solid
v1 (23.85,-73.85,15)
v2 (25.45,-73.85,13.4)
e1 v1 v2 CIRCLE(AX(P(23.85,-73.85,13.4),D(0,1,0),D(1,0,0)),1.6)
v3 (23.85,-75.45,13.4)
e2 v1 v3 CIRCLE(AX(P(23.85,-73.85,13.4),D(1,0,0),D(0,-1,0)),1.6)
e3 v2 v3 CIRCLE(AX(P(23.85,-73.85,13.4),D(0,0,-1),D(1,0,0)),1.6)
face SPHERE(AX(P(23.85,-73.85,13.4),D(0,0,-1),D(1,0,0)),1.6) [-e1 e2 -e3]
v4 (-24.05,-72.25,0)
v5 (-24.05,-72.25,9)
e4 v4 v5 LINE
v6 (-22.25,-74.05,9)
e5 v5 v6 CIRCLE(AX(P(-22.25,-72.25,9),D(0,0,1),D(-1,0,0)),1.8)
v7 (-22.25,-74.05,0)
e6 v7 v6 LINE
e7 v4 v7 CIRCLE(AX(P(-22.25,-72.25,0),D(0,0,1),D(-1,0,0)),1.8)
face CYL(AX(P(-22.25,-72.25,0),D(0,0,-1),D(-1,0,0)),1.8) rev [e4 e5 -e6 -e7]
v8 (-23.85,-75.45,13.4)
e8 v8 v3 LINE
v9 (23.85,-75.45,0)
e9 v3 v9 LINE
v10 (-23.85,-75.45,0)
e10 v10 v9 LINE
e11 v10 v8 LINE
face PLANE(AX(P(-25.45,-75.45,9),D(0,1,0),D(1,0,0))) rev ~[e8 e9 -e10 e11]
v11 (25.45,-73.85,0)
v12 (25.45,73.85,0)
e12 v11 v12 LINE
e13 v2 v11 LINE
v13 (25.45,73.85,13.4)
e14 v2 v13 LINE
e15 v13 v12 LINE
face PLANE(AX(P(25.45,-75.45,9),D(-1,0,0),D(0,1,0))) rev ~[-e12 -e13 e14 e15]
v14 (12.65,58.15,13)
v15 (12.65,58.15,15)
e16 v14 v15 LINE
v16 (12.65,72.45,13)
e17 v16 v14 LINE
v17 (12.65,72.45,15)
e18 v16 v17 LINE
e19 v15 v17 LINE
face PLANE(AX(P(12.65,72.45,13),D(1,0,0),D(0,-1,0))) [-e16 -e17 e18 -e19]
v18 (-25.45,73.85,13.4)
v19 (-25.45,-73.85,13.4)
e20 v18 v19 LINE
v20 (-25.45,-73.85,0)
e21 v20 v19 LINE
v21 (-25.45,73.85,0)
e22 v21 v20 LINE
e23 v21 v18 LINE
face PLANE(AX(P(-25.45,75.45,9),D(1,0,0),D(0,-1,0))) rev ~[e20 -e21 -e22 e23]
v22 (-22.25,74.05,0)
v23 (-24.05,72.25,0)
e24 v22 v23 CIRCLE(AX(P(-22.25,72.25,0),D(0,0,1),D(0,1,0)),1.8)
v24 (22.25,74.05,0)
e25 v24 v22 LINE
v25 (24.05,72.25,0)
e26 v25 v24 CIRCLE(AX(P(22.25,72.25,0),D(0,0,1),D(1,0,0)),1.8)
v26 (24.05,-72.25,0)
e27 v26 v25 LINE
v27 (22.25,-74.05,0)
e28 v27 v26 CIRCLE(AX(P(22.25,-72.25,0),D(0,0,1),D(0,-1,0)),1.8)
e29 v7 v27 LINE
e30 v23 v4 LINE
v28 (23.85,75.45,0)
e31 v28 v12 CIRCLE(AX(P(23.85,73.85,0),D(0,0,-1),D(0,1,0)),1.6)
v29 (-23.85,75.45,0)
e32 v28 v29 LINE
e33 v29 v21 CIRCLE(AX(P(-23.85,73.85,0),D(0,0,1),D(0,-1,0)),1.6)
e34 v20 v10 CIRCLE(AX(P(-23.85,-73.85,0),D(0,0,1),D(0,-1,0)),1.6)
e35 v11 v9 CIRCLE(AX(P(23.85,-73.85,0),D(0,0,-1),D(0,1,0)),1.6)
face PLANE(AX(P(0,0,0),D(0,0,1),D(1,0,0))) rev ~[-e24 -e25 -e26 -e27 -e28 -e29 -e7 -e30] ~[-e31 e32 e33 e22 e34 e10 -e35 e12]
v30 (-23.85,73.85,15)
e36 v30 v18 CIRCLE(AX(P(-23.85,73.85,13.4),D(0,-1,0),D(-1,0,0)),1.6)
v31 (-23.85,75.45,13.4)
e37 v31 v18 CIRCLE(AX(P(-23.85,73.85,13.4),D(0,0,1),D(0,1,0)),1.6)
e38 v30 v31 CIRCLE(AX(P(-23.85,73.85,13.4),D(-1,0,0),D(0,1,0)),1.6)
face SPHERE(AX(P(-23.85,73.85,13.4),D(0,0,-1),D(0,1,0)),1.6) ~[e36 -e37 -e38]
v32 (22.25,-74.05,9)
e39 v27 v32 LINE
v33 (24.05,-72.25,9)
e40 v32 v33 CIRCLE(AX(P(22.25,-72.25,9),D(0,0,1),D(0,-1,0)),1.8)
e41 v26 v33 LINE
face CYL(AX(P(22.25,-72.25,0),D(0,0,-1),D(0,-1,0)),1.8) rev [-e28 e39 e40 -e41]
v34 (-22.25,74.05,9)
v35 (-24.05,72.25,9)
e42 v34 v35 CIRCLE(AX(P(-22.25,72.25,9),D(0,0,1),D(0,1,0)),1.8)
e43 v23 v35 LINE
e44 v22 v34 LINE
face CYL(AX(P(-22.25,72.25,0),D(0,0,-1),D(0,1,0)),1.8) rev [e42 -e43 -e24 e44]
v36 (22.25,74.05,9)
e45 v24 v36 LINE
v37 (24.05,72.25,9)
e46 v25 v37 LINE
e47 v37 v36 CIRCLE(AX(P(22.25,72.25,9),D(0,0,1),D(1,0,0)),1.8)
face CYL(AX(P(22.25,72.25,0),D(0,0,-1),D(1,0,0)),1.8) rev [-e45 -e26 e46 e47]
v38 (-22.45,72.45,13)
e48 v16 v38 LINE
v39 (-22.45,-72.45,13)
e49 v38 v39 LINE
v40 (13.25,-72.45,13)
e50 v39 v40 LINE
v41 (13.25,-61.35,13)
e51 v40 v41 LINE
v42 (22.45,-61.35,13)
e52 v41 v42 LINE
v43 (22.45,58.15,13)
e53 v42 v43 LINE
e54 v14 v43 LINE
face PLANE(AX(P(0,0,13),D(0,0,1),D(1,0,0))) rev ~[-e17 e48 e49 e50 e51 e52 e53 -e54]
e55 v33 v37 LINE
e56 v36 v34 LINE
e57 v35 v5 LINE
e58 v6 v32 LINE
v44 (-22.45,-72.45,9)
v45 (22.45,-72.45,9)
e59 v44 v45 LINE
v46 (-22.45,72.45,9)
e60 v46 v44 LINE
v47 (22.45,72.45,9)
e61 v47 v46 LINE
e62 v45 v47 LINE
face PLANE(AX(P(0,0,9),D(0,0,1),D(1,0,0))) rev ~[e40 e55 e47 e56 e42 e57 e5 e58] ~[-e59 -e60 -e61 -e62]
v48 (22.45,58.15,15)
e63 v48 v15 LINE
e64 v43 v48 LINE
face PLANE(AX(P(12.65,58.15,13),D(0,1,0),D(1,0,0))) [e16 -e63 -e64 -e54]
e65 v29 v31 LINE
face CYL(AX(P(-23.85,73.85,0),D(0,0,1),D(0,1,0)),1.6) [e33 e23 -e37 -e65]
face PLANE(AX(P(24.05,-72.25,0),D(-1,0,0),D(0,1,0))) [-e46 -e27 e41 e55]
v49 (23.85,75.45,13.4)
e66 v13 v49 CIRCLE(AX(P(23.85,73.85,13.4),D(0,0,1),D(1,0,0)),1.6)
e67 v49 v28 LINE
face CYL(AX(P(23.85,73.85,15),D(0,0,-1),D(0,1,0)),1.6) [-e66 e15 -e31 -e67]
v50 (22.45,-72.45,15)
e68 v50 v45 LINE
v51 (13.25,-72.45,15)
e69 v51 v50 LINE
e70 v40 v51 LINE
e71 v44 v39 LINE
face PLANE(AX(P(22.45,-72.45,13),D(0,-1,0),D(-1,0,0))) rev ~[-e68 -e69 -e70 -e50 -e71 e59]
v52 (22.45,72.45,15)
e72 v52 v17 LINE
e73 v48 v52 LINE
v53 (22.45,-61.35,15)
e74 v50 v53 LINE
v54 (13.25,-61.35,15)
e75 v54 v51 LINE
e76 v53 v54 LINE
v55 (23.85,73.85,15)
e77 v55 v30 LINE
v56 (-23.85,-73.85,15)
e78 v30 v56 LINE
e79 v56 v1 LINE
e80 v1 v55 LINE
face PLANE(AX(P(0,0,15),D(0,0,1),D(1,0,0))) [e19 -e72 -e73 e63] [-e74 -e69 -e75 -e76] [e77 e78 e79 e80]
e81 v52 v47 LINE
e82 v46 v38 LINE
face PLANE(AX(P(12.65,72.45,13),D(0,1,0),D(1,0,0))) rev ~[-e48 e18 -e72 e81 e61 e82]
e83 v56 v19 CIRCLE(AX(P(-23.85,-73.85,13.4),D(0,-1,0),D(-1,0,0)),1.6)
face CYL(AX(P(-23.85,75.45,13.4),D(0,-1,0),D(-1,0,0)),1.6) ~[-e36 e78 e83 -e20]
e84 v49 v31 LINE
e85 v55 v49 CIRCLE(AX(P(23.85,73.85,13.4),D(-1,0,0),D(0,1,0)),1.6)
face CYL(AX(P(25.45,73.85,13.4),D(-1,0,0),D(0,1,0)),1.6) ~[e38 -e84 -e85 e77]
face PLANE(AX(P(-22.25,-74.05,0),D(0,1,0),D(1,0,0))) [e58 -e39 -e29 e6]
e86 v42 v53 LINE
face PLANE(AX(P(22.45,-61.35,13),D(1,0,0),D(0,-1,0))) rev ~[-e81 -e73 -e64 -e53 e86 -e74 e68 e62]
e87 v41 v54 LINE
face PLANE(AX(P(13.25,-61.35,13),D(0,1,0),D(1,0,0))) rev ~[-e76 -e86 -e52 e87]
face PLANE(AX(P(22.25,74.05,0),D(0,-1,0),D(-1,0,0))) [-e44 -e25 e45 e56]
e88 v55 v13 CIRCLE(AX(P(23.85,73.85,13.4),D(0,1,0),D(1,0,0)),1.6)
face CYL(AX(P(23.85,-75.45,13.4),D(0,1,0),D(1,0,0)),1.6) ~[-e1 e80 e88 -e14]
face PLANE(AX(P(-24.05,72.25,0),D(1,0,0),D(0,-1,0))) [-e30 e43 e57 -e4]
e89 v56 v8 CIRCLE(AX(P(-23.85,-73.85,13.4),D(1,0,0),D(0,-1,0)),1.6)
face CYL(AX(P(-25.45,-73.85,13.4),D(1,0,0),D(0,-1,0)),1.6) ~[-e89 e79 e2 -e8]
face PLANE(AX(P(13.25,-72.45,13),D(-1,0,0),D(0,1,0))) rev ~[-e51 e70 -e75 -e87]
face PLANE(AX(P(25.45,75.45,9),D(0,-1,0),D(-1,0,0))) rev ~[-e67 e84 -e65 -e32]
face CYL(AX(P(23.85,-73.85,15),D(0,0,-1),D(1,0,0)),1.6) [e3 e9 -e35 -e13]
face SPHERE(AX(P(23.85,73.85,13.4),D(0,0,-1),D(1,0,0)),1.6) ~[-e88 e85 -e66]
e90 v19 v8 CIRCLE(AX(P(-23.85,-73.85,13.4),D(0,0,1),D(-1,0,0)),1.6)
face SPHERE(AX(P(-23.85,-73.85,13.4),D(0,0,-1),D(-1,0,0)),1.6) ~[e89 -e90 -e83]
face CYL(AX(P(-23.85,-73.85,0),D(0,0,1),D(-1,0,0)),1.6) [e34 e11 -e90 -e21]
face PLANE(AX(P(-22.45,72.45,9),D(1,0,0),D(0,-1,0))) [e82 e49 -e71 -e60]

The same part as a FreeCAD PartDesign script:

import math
import FreeCAD as App
import Part
import Sketcher

V = App.Vector
Q = App.Units.Quantity


def edges_at(feature, points):
    """Names of the edges that pass closest to the given points."""
    edges = feature.Shape.Edges
    near = lambda p: min(range(len(edges)), key=lambda i: edges[i].distToShape(Part.Vertex(*p))[0])
    return sorted({f"Edge{near(p) + 1}" for p in points})

doc = App.newDocument("Part")
params = doc.addObject("Spreadsheet::Sheet", "Params")
for row, (alias, value) in enumerate([
    ("sketch1_radius", "1.8 mm"),
    ("sketch1_width", "50.9 mm"),
    ("sketch1_width2", "44.5 mm"),
    ("sketch1_height", "150.9 mm"),
    ("sketch1_height2", "144.5 mm"),
    ("pad1_length", "9 mm"),
    ("sketch2_width", "50.9 mm"),
    ("sketch2_height", "150.9 mm"),
    ("pad2_length", "4 mm"),
    ("sketch3_width", "50.9 mm"),
    ("sketch3_height", "150.9 mm"),
    ("pad3_length", "2 mm"),
    ("fillet_radius", "1.6 mm"),
    ("sketch4_width", "9.2 mm"),
    ("sketch4_height", "11.1 mm"),
    ("pocket1_length", "9 mm"),
    ("sketch5_width", "9.8 mm"),
    ("sketch5_height", "14.3 mm"),
    ("pocket2_length", "9 mm"),
], start=1):
    params.set(f"A{row}", alias)
    params.set(f"B{row}", "=" + value)
    params.setAlias(f"B{row}", alias)

body = doc.addObject("PartDesign::Body", "Body")

sketch1 = body.newObject("Sketcher::SketchObject", "Sketch")
sketch1.AttachmentSupport = (doc.getObject("XY_Plane"), [""])
sketch1.MapMode = "FlatFace"
sketch1.addGeometry([
    Part.LineSegment(V(25.45, -75.45, 0), V(25.45, 75.45, 0)),
    Part.LineSegment(V(25.45, 75.45, 0), V(-25.45, 75.45, 0)),
    Part.LineSegment(V(-25.45, 75.45, 0), V(-25.45, -75.45, 0)),
    Part.LineSegment(V(-25.45, -75.45, 0), V(25.45, -75.45, 0)),
    Part.LineSegment(V(22.25, -74.05, 0), V(-22.25, -74.05, 0)),
    Part.ArcOfCircle(Part.Circle(V(-22.25, -72.25, 0), V(0, 0, 1), 1.8), math.radians(180), math.radians(270)),
    Part.LineSegment(V(-24.05, -72.25, 0), V(-24.05, 72.25, 0)),
    Part.ArcOfCircle(Part.Circle(V(-22.25, 72.25, 0), V(0, 0, 1), 1.8), math.radians(90), math.radians(180)),
    Part.LineSegment(V(-22.25, 74.05, 0), V(22.25, 74.05, 0)),
    Part.ArcOfCircle(Part.Circle(V(22.25, 72.25, 0), V(0, 0, 1), 1.8), math.radians(0), math.radians(90)),
    Part.LineSegment(V(24.05, 72.25, 0), V(24.05, -72.25, 0)),
    Part.ArcOfCircle(Part.Circle(V(22.25, -72.25, 0), V(0, 0, 1), 1.8), math.radians(-90), math.radians(0)),
], False)
sketch1.addConstraint([
    Sketcher.Constraint("Coincident", 0, 2, 1, 1),
    Sketcher.Constraint("Coincident", 1, 2, 2, 1),
    Sketcher.Constraint("Coincident", 2, 2, 3, 1),
    Sketcher.Constraint("Coincident", 3, 2, 0, 1),
    Sketcher.Constraint("Tangent", 4, 2, 5, 2),
    Sketcher.Constraint("Tangent", 5, 1, 6, 1),
    Sketcher.Constraint("Tangent", 6, 2, 7, 2),
    Sketcher.Constraint("Tangent", 7, 1, 8, 1),
    Sketcher.Constraint("Tangent", 8, 2, 9, 2),
    Sketcher.Constraint("Tangent", 9, 1, 10, 1),
    Sketcher.Constraint("Tangent", 10, 2, 11, 2),
    Sketcher.Constraint("Tangent", 11, 1, 4, 1),
    Sketcher.Constraint("Vertical", 0),
    Sketcher.Constraint("Horizontal", 1),
    Sketcher.Constraint("Vertical", 2),
    Sketcher.Constraint("Horizontal", 3),
    Sketcher.Constraint("Horizontal", 4),
    Sketcher.Constraint("Vertical", 6),
    Sketcher.Constraint("Horizontal", 8),
    Sketcher.Constraint("Vertical", 10),
    Sketcher.Constraint("Equal", 5, 7),
    Sketcher.Constraint("Equal", 7, 9),
    Sketcher.Constraint("Equal", 9, 11),
    Sketcher.Constraint("Symmetric", 5, 3, 9, 3, -1, 1),
    Sketcher.Constraint("Symmetric", 0, 2, 2, 2, -1, 1),
    Sketcher.Constraint("Radius", 5, Q("1.8 mm")),
    Sketcher.Constraint("DistanceX", 1, 2, 1, 1, Q("50.9 mm")),
    Sketcher.Constraint("DistanceX", 4, 2, 4, 1, Q("44.5 mm")),
    Sketcher.Constraint("DistanceY", 0, 1, 0, 2, Q("150.9 mm")),
    Sketcher.Constraint("DistanceY", 6, 1, 6, 2, Q("144.5 mm")),
])
sketch1.setExpression("Constraints[25]", "Params.sketch1_radius")
sketch1.setExpression("Constraints[26]", "Params.sketch1_width")
sketch1.setExpression("Constraints[27]", "Params.sketch1_width2")
sketch1.setExpression("Constraints[28]", "Params.sketch1_height")
sketch1.setExpression("Constraints[29]", "Params.sketch1_height2")
pad1 = body.newObject("PartDesign::Pad", "Pad")
pad1.Profile = sketch1
pad1.setExpression("Length", "Params.pad1_length")

sketch2 = body.newObject("Sketcher::SketchObject", "Sketch001")
sketch2.AttachmentSupport = (doc.getObject("XY_Plane"), [""])
sketch2.MapMode = "FlatFace"
sketch2.AttachmentOffset = App.Placement(V(0, 0, 9), App.Rotation())
sketch2.addGeometry([
    Part.LineSegment(V(25.45, 75.45, 0), V(-25.45, 75.45, 0)),
    Part.LineSegment(V(-25.45, 75.45, 0), V(-25.45, -75.45, 0)),
    Part.LineSegment(V(-25.45, -75.45, 0), V(25.45, -75.45, 0)),
    Part.LineSegment(V(25.45, -75.45, 0), V(25.45, 75.45, 0)),
    Part.LineSegment(V(-22.45, -72.45, 0), V(-22.45, 72.45, 0)),
    Part.LineSegment(V(-22.45, 72.45, 0), V(22.45, 72.45, 0)),
    Part.LineSegment(V(22.45, 72.45, 0), V(22.45, -72.45, 0)),
    Part.LineSegment(V(22.45, -72.45, 0), V(-22.45, -72.45, 0)),
], False)
sketch2.addConstraint([
    Sketcher.Constraint("Coincident", 0, 2, 1, 1),
    Sketcher.Constraint("Coincident", 1, 2, 2, 1),
    Sketcher.Constraint("Coincident", 2, 2, 3, 1),
    Sketcher.Constraint("Coincident", 3, 2, 0, 1),
    Sketcher.Constraint("Coincident", 4, 2, 5, 1),
    Sketcher.Constraint("Coincident", 5, 2, 6, 1),
    Sketcher.Constraint("Coincident", 6, 2, 7, 1),
    Sketcher.Constraint("Coincident", 7, 2, 4, 1),
    Sketcher.Constraint("Horizontal", 0),
    Sketcher.Constraint("Vertical", 1),
    Sketcher.Constraint("Horizontal", 2),
    Sketcher.Constraint("Vertical", 3),
    Sketcher.Constraint("Vertical", 4),
    Sketcher.Constraint("Horizontal", 5),
    Sketcher.Constraint("Vertical", 6),
    Sketcher.Constraint("Horizontal", 7),
    Sketcher.Constraint("Symmetric", 0, 2, 2, 2, -1, 1),
    Sketcher.Constraint("Symmetric", 4, 2, 6, 2, -1, 1),
    Sketcher.Constraint("DistanceX", 0, 2, 4, 2, Q("3 mm")),
    Sketcher.Constraint("DistanceY", 4, 2, 0, 2, Q("3 mm")),
    Sketcher.Constraint("DistanceX", 0, 2, 0, 1, Q("50.9 mm")),
    Sketcher.Constraint("DistanceY", 1, 2, 1, 1, Q("150.9 mm")),
])
sketch2.setExpression("Constraints[20]", "Params.sketch2_width")
sketch2.setExpression("Constraints[21]", "Params.sketch2_height")
pad2 = body.newObject("PartDesign::Pad", "Pad001")
pad2.Profile = sketch2
pad2.setExpression("Length", "Params.pad2_length")

sketch3 = body.newObject("Sketcher::SketchObject", "Sketch002")
sketch3.AttachmentSupport = (doc.getObject("XY_Plane"), [""])
sketch3.MapMode = "FlatFace"
sketch3.AttachmentOffset = App.Placement(V(0, 0, 13), App.Rotation())
sketch3.addGeometry([
    Part.LineSegment(V(-25.45, 75.45, 0), V(-25.45, -75.45, 0)),
    Part.LineSegment(V(-25.45, -75.45, 0), V(25.45, -75.45, 0)),
    Part.LineSegment(V(25.45, -75.45, 0), V(25.45, 75.45, 0)),
    Part.LineSegment(V(25.45, 75.45, 0), V(-25.45, 75.45, 0)),
], False)
sketch3.addConstraint([
    Sketcher.Constraint("Coincident", 0, 2, 1, 1),
    Sketcher.Constraint("Coincident", 1, 2, 2, 1),
    Sketcher.Constraint("Coincident", 2, 2, 3, 1),
    Sketcher.Constraint("Coincident", 3, 2, 0, 1),
    Sketcher.Constraint("Vertical", 0),
    Sketcher.Constraint("Horizontal", 1),
    Sketcher.Constraint("Vertical", 2),
    Sketcher.Constraint("Horizontal", 3),
    Sketcher.Constraint("Symmetric", 0, 2, 2, 2, -1, 1),
    Sketcher.Constraint("DistanceX", 1, 1, 1, 2, Q("50.9 mm")),
    Sketcher.Constraint("DistanceY", 0, 2, 0, 1, Q("150.9 mm")),
])
sketch3.setExpression("Constraints[9]", "Params.sketch3_width")
sketch3.setExpression("Constraints[10]", "Params.sketch3_height")
pad3 = body.newObject("PartDesign::Pad", "Pad002")
pad3.Profile = sketch3
pad3.setExpression("Length", "Params.pad3_length")
doc.recompute()

fillet = body.newObject("PartDesign::Fillet", "Fillet")
fillet.Base = (pad3, edges_at(pad3, [
    (25.45, -75.45, 12),
    (25.45, -75.45, 4.5),
    (-25.45, -75.45, 12),
    (-25.45, -75.45, 4.5),
    (-25.45, 75.45, 7.5),
    (25.45, 75.45, 12),
    (25.45, 75.45, 4.5),
    (25.45, 0, 15),
    (0, 75.45, 15),
    (-25.45, 0, 15),
    (0, -75.45, 15),
]))
fillet.setExpression("Radius", "Params.fillet_radius")

sketch4 = body.newObject("Sketcher::SketchObject", "Sketch003")
sketch4.AttachmentSupport = (doc.getObject("XY_Plane"), [""])
sketch4.MapMode = "FlatFace"
sketch4.AttachmentOffset = App.Placement(V(0, 0, 13), App.Rotation())
sketch4.addGeometry([
    Part.LineSegment(V(22.45, -72.45, 0), V(13.25, -72.45, 0)),
    Part.LineSegment(V(13.25, -72.45, 0), V(13.25, -61.35, 0)),
    Part.LineSegment(V(13.25, -61.35, 0), V(22.45, -61.35, 0)),
    Part.LineSegment(V(22.45, -61.35, 0), V(22.45, -72.45, 0)),
], False)
sketch4.addConstraint([
    Sketcher.Constraint("Coincident", 0, 2, 1, 1),
    Sketcher.Constraint("Coincident", 1, 2, 2, 1),
    Sketcher.Constraint("Coincident", 2, 2, 3, 1),
    Sketcher.Constraint("Coincident", 3, 2, 0, 1),
    Sketcher.Constraint("Horizontal", 0),
    Sketcher.Constraint("Vertical", 1),
    Sketcher.Constraint("Horizontal", 2),
    Sketcher.Constraint("Vertical", 3),
    Sketcher.Constraint("DistanceX", 0, 2, 0, 1, Q("9.2 mm")),
    Sketcher.Constraint("DistanceY", 1, 1, 1, 2, Q("11.1 mm")),
    Sketcher.Constraint("DistanceX", -1, 1, 0, 2, Q("13.25 mm")),
    Sketcher.Constraint("DistanceY", 0, 2, -1, 1, Q("72.45 mm")),
])
sketch4.setExpression("Constraints[8]", "Params.sketch4_width")
sketch4.setExpression("Constraints[9]", "Params.sketch4_height")
pocket1 = body.newObject("PartDesign::Pocket", "Pocket")
pocket1.Profile = sketch4
pocket1.setExpression("Length", "Params.pocket1_length")
pocket1.Reversed = True

sketch5 = body.newObject("Sketcher::SketchObject", "Sketch004")
sketch5.AttachmentSupport = (doc.getObject("XY_Plane"), [""])
sketch5.MapMode = "FlatFace"
sketch5.AttachmentOffset = App.Placement(V(0, 0, 13), App.Rotation())
sketch5.addGeometry([
    Part.LineSegment(V(22.45, 72.45, 0), V(22.45, 58.15, 0)),
    Part.LineSegment(V(22.45, 58.15, 0), V(12.65, 58.15, 0)),
    Part.LineSegment(V(12.65, 58.15, 0), V(12.65, 72.45, 0)),
    Part.LineSegment(V(12.65, 72.45, 0), V(22.45, 72.45, 0)),
], False)
sketch5.addConstraint([
    Sketcher.Constraint("Coincident", 0, 2, 1, 1),
    Sketcher.Constraint("Coincident", 1, 2, 2, 1),
    Sketcher.Constraint("Coincident", 2, 2, 3, 1),
    Sketcher.Constraint("Coincident", 3, 2, 0, 1),
    Sketcher.Constraint("Vertical", 0),
    Sketcher.Constraint("Horizontal", 1),
    Sketcher.Constraint("Vertical", 2),
    Sketcher.Constraint("Horizontal", 3),
    Sketcher.Constraint("DistanceX", 1, 2, 1, 1, Q("9.8 mm")),
    Sketcher.Constraint("DistanceY", 0, 2, 0, 1, Q("14.3 mm")),
    Sketcher.Constraint("DistanceX", -1, 1, 0, 2, Q("22.45 mm")),
    Sketcher.Constraint("DistanceY", -1, 1, 0, 2, Q("58.15 mm")),
])
sketch5.setExpression("Constraints[8]", "Params.sketch5_width")
sketch5.setExpression("Constraints[9]", "Params.sketch5_height")
pocket2 = body.newObject("PartDesign::Pocket", "Pocket001")
pocket2.Profile = sketch5
pocket2.setExpression("Length", "Params.pocket2_length")
pocket2.Reversed = True

doc.recompute()
